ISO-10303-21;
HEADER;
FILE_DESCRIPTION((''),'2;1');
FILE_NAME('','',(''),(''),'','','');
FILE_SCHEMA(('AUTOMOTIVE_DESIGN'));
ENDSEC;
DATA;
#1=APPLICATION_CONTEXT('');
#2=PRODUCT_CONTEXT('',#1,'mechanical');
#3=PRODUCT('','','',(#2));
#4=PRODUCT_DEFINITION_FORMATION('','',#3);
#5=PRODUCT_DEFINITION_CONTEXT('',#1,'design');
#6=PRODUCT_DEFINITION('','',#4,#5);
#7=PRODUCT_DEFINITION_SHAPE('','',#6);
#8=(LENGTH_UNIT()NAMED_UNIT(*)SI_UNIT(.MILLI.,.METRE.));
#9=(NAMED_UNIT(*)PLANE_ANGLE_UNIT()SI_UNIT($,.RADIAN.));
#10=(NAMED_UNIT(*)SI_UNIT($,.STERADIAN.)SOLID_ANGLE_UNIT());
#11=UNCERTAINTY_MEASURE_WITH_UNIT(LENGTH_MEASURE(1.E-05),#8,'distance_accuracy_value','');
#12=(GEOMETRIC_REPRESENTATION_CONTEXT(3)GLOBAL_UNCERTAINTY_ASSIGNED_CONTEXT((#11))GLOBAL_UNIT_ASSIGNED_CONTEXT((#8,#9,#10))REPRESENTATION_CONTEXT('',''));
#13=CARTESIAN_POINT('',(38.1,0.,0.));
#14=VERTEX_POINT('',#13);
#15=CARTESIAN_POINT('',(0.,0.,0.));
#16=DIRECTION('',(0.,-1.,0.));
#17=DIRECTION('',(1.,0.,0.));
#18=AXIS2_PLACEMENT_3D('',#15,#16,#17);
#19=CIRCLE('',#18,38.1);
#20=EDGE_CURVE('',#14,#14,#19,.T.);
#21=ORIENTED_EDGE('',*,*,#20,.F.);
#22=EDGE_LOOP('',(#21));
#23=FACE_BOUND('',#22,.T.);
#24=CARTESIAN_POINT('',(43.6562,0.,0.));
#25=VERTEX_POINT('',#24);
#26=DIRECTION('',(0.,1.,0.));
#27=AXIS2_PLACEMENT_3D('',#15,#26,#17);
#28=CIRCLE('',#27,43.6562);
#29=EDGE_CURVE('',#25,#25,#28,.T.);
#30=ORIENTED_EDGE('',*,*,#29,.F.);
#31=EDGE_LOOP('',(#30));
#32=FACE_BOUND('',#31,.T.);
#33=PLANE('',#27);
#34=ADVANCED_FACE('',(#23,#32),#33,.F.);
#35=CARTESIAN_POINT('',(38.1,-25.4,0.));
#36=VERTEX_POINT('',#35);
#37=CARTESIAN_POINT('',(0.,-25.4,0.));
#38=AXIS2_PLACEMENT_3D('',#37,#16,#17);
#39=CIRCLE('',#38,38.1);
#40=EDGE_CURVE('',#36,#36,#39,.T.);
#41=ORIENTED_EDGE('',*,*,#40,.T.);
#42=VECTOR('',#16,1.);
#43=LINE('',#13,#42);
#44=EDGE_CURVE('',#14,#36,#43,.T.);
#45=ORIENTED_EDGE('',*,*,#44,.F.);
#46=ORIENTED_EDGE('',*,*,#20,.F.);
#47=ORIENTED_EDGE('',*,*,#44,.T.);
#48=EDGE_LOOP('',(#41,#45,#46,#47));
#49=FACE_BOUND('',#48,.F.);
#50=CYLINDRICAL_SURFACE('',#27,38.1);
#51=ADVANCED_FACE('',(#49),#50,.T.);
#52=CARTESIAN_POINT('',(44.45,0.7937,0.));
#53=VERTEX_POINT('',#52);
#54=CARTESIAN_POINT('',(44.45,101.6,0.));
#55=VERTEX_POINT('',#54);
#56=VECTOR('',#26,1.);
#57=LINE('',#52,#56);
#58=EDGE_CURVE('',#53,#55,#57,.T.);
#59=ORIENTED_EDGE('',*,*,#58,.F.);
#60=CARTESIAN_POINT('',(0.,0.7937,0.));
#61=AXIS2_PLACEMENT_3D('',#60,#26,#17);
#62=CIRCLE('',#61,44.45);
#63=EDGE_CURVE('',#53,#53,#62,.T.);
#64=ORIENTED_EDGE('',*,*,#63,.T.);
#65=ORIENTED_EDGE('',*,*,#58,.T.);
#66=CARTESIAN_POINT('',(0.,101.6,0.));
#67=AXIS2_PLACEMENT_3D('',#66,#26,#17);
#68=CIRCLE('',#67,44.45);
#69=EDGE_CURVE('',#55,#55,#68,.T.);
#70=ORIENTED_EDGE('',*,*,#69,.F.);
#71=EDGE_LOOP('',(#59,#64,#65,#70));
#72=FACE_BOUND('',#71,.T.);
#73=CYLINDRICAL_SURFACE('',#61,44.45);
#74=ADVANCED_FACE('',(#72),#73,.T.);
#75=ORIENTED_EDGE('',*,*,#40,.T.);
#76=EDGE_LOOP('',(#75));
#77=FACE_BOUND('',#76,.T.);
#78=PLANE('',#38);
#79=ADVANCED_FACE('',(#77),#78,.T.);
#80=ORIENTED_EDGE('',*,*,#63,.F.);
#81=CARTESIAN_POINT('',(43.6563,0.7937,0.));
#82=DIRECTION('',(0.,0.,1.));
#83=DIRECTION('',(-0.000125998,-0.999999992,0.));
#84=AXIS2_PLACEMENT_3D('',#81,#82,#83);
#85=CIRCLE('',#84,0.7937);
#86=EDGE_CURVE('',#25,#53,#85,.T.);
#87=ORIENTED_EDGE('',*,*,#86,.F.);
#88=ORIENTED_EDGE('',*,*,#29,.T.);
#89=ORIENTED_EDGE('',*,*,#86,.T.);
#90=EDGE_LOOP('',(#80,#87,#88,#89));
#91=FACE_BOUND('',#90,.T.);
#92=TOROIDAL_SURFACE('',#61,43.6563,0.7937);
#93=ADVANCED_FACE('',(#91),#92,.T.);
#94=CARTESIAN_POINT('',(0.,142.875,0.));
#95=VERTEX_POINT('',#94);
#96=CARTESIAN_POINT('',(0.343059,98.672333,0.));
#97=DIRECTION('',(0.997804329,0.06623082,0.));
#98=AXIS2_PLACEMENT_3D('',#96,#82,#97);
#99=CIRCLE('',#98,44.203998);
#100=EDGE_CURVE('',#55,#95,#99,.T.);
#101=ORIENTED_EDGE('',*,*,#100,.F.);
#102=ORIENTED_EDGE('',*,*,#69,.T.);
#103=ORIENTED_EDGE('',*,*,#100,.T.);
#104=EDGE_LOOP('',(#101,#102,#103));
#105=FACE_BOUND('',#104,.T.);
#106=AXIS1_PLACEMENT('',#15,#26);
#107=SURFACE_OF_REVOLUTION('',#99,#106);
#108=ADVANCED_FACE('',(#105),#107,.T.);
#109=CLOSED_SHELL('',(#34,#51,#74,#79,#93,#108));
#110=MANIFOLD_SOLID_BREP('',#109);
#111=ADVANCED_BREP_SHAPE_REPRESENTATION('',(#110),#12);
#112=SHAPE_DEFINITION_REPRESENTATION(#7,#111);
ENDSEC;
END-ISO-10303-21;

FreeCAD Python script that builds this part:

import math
import FreeCAD as App
import Part
import Sketcher

V = App.Vector
Q = App.Units.Quantity

doc = App.newDocument("Part")
body = doc.addObject("PartDesign::Body", "Body")

# Sketch on XY plane
sketch1 = doc.addObject("Sketcher::SketchObject", "Sketch")
body.addObject(sketch1)
sketch1.AttachmentSupport = (doc.XY_Plane, [""])
sketch1.MapMode = "FlatFace"
sketch1.addGeometry([
    Part.LineSegment(V(0, 142.9, 0), V(0, 0, 0)),  # 0
    Part.LineSegment(V(0, 0, 0), V(43.7, 0, 0)),  # 1
    Part.ArcOfCircle(Part.Circle(V(43.7, 0.8, 0), V(0, 0, 1), 0.8), math.radians(-90), math.radians(0)),  # 2
    Part.LineSegment(V(44.5, 0.8, 0), V(44.5, 101.6, 0)),  # 3
    Part.ArcOfCircle(Part.Circle(V(0.3, 98.7, 0), V(0, 0, 1), 44.2), math.radians(4), math.radians(90)),  # 4
], False)
sketch1.addConstraint([
    Sketcher.Constraint("Coincident", 0, 2, 1, 1),
    Sketcher.Constraint("Tangent", 1, 2, 2, 1),
    Sketcher.Constraint("Tangent", 2, 2, 3, 1),
    Sketcher.Constraint("Coincident", 3, 2, 4, 1),
    Sketcher.Constraint("Coincident", 4, 2, 0, 1),
    Sketcher.Constraint("Vertical", 0),
    Sketcher.Constraint("Horizontal", 1),
    Sketcher.Constraint("Vertical", 3),
    Sketcher.Constraint("Coincident", 0, 2, -1, 1),
    Sketcher.Constraint("DistanceY", -1, 1, 3, 2, Q("4 in")),
    Sketcher.Constraint("Radius", 2, Q("0.031248 in")),
    Sketcher.Constraint("DistanceY", 0, 2, 0, 1, Q("5.625 in")),
    Sketcher.Constraint("DistanceX", -1, 1, 2, 2, Q("1.75 in")),
    Sketcher.Constraint("Radius", 4, Q("1.7403 in")),
])
revolution = doc.addObject("PartDesign::Revolution", "Revolution")
body.addObject(revolution)
revolution.Profile = sketch1
revolution.ReferenceAxis = (sketch1, ["V_Axis"])
revolution.Angle = 360

# Sketch on XZ plane
sketch2 = doc.addObject("Sketcher::SketchObject", "Sketch001")
body.addObject(sketch2)
sketch2.AttachmentSupport = (doc.XZ_Plane, [""])
sketch2.MapMode = "FlatFace"
sketch2.addGeometry(Part.Circle(V(0, 0, 0), V(0, 0, 1), 38), False)
sketch2.addConstraint([
    Sketcher.Constraint("Coincident", 0, 3, -1, 1),
    Sketcher.Constraint("Diameter", 0, Q("3 in")),
])
pad1 = doc.addObject("PartDesign::Pad", "Pad")
body.addObject(pad1)
pad1.Profile = sketch2
pad1.Length = Q("1 in")

doc.recompute()
